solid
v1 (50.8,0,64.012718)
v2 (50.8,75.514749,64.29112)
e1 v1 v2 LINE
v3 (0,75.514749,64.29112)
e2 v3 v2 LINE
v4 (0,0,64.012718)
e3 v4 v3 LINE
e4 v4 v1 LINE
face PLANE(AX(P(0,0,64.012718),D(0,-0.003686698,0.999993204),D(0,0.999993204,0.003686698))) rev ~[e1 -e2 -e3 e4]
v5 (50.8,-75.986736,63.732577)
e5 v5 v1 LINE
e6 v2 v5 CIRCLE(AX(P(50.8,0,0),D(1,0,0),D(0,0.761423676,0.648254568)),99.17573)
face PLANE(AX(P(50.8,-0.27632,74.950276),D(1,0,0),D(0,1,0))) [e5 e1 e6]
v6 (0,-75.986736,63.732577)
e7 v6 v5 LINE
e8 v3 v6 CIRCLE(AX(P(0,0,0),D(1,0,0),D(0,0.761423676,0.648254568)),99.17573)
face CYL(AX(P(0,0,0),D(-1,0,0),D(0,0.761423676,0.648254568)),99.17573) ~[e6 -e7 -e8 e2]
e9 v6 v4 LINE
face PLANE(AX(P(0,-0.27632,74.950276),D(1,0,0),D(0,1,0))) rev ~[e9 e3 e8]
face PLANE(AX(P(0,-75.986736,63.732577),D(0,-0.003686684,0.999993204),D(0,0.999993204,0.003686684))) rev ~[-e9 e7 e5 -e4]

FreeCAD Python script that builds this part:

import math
import FreeCAD as App
import Part
import Sketcher
from FreeCAD import Vector
Q = App.Units.Quantity

doc = App.newDocument("Part")
body = doc.addObject("PartDesign::Body", "Body")

# Sketch on YZ plane
sketch1 = doc.addObject("Sketcher::SketchObject", "Sketch")
body.addObject(sketch1)
sketch1.AttachmentSupport = (doc.YZ_Plane, [""])
sketch1.MapMode = "FlatFace"
sketch1.addGeometry([
    Part.LineSegment(Vector(0, 64.012718, 0), Vector(75.514749, 64.29112, 0)),
    Part.ArcOfCircle(Part.Circle(Vector(0, 0, 0), Vector(0, 0, 1), 99.17573), math.radians(40.410133), math.radians(140.012332)),
    Part.LineSegment(Vector(-75.986736, 63.732577, 0), Vector(0, 64.012718, 0)),
], False)
sketch1.addConstraint([
    Sketcher.Constraint("Coincident", 0, 2, 1, 1),
    Sketcher.Constraint("Coincident", 1, 2, 2, 1),
    Sketcher.Constraint("Coincident", 2, 2, 0, 1),
    Sketcher.Constraint("Coincident", 1, 3, -1, 1),
    Sketcher.Constraint("PointOnObject", 2, 2, -2),
    Sketcher.Constraint("Parallel", 0, 2),
    Sketcher.Constraint("Radius", 1, Q("99.17573 mm")),
    Sketcher.Constraint("DistanceY", 2, 2, 0, 2, Q("0.278402 mm")),
    Sketcher.Constraint("DistanceX", -1, 1, 0, 2, Q("75.514749 mm")),
])
pad1 = doc.addObject("PartDesign::Pad", "Pad")
body.addObject(pad1)
pad1.Profile = sketch1
pad1.Length = Q("2 in")

doc.recompute()
